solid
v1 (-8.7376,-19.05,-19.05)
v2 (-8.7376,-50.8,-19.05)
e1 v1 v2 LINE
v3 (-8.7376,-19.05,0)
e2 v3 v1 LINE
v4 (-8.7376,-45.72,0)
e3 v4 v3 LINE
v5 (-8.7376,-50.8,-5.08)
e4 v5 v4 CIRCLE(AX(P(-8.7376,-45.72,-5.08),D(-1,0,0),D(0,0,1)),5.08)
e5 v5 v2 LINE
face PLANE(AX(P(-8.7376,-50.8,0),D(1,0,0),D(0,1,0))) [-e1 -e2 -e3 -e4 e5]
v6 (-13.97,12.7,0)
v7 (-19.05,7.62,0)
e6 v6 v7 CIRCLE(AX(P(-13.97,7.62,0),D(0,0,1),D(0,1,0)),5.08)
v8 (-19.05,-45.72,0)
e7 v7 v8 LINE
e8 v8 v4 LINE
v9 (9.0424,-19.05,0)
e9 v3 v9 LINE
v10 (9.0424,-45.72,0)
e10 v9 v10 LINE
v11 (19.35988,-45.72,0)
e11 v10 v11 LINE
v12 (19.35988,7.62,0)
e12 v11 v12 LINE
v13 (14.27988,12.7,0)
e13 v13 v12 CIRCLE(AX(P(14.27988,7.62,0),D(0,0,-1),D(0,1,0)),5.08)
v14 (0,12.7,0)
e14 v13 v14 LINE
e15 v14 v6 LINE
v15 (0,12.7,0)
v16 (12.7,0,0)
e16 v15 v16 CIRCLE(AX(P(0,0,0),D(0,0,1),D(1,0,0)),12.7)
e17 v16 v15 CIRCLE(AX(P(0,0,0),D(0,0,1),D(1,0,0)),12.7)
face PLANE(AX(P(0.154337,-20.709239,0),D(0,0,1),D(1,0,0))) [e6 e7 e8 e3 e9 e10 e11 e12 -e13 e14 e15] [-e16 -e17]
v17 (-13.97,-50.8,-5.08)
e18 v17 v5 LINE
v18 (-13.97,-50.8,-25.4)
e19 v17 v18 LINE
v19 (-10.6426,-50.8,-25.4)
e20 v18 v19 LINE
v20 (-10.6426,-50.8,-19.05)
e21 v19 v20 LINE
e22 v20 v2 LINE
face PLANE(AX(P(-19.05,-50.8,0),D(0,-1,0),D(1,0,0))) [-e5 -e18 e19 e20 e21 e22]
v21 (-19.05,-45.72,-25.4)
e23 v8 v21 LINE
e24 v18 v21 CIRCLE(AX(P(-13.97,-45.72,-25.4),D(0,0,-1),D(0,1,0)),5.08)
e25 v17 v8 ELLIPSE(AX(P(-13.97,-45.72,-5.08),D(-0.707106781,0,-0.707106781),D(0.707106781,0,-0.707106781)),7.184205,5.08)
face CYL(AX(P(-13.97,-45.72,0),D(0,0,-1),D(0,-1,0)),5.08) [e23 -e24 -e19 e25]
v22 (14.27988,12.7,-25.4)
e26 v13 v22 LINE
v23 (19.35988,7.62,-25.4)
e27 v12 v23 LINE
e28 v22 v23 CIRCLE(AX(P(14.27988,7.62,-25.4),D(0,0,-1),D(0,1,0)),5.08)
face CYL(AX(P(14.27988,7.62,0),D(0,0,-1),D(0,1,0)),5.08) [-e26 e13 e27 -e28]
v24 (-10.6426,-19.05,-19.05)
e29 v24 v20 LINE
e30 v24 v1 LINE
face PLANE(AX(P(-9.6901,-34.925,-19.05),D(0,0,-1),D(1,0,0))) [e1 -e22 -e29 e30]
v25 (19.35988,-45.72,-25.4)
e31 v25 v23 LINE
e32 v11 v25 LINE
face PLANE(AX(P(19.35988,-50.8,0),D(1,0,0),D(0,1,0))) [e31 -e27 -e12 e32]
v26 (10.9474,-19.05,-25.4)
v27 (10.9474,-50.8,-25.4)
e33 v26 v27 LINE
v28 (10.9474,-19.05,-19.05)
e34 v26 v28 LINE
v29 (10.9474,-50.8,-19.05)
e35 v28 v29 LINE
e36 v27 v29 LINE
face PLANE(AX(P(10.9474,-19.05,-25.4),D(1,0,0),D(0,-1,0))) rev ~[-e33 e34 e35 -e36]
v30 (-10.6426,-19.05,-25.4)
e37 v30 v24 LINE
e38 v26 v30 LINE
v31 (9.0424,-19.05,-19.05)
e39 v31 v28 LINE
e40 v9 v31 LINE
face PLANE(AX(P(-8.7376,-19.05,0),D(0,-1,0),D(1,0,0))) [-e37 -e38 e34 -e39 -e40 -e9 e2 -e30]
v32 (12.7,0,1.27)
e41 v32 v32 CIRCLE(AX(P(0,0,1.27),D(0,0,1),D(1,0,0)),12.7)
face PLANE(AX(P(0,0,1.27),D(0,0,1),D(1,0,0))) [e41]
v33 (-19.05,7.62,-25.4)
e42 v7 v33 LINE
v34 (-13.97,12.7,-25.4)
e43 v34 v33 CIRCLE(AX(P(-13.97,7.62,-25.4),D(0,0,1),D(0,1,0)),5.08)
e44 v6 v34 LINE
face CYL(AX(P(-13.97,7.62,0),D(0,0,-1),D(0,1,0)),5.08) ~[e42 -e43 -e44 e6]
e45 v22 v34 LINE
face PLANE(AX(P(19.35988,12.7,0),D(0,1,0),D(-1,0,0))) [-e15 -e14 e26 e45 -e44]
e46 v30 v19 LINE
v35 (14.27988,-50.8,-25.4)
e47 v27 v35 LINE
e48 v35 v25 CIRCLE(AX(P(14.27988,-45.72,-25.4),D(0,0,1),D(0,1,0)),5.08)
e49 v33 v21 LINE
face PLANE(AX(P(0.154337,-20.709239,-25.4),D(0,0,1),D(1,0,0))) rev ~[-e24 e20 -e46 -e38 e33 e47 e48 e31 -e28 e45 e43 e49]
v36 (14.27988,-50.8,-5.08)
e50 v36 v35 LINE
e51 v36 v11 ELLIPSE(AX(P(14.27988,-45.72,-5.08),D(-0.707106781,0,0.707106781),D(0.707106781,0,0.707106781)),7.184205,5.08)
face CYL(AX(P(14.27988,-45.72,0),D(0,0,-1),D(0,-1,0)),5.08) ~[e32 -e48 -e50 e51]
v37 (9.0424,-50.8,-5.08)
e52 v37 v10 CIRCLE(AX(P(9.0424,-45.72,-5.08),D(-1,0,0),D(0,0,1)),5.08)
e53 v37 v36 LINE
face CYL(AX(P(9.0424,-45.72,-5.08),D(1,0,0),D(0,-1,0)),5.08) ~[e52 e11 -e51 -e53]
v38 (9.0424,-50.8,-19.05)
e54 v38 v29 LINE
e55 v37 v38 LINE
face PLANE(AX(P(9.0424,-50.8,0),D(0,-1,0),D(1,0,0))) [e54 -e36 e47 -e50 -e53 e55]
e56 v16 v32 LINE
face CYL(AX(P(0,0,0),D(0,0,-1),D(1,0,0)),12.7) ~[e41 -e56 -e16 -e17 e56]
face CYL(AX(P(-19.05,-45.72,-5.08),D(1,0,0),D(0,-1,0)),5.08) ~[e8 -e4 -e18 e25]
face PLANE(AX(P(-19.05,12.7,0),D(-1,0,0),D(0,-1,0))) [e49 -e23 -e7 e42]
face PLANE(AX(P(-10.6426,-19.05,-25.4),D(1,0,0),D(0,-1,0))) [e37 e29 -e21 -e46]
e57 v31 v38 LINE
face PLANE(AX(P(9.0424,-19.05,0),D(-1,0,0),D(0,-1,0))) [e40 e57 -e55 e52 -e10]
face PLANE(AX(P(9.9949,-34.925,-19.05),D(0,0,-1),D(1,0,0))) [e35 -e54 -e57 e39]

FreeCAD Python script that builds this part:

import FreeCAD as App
import Part
import Sketcher

V = App.Vector
Q = App.Units.Quantity


def edges_at(feature, points):
    """Names of the edges that pass closest to the given points."""
    edges = feature.Shape.Edges
    near = lambda p: min(range(len(edges)), key=lambda i: edges[i].distToShape(Part.Vertex(*p))[0])
    return sorted({f"Edge{near(p) + 1}" for p in points})


def add_polygon(sketch, points):
    """Adds a closed chain of lines whose ends are joined by coincident constraints."""
    first, n = sketch.GeometryCount, len(points)
    for a, b in zip(points, points[1:] + points[:1]):
        sketch.addGeometry(Part.LineSegment(App.Vector(*a, 0), App.Vector(*b, 0)), False)
    for i in range(n):
        sketch.addConstraint(Sketcher.Constraint("Coincident", first + i, 2, first + (i + 1) % n, 1))

doc = App.newDocument("Part")
body = doc.addObject("PartDesign::Body", "Body")

# Sketch on XY plane
sketch1 = body.newObject("Sketcher::SketchObject", "Sketch")
sketch1.AttachmentSupport = (doc.getObject("XY_Plane"), [""])
sketch1.MapMode = "FlatFace"
sketch1.addGeometry(Part.Circle(V(0, 0, 0), V(0, 0, 1), 13), False)
sketch1.addConstraint(Sketcher.Constraint("Coincident", 0, 3, -1, 1))
sketch1.addConstraint(Sketcher.Constraint("Diameter", 0, Q("1 in")))
pad1 = body.newObject("PartDesign::Pad", "Pad")
pad1.Profile = sketch1
pad1.Length = Q("0.05 in")

# Sketch on XY plane
sketch2 = body.newObject("Sketcher::SketchObject", "Sketch001")
sketch2.AttachmentSupport = (doc.getObject("XY_Plane"), [""])
sketch2.MapMode = "FlatFace"
add_polygon(sketch2, [(19, 13), (-19, 13), (-19, -51), (-9, -51), (-9, -19), (9, -19), (9, -51), (19, -51)])  # lines 0-7
sketch2.addConstraint(Sketcher.Constraint("Horizontal", 0))
sketch2.addConstraint(Sketcher.Constraint("Vertical", 1))
sketch2.addConstraint(Sketcher.Constraint("Horizontal", 2))
sketch2.addConstraint(Sketcher.Constraint("Vertical", 3))
sketch2.addConstraint(Sketcher.Constraint("Horizontal", 4))
sketch2.addConstraint(Sketcher.Constraint("Vertical", 5))
sketch2.addConstraint(Sketcher.Constraint("Horizontal", 6))
sketch2.addConstraint(Sketcher.Constraint("Vertical", 7))
sketch2.addConstraint(Sketcher.Constraint("Horizontal", 2, 2, 5, 2))
sketch2.addConstraint(Sketcher.Constraint("DistanceX", 4, 1, 4, 2, Q("0.7 in")))
sketch2.addConstraint(Sketcher.Constraint("DistanceY", 1, 2, 1, 1, Q("2.5 in")))
sketch2.addConstraint(Sketcher.Constraint("DistanceY", 1, 2, -1, 1, Q("2 in")))
sketch2.addConstraint(Sketcher.Constraint("DistanceY", 3, 1, 3, 2, Q("1.25 in")))
sketch2.addConstraint(Sketcher.Constraint("DistanceX", 2, 1, 2, 2, Q("0.406 in")))
sketch2.addConstraint(Sketcher.Constraint("DistanceX", 0, 2, -1, 1, Q("0.75 in")))
sketch2.addConstraint(Sketcher.Constraint("DistanceX", 0, 2, 0, 1, Q("1.5122 in")))
pad2 = body.newObject("PartDesign::Pad", "Pad001")
pad2.Profile = sketch2
pad2.Length = Q("1 in")
pad2.Reversed = True

# Sketch on XY plane
sketch3 = body.newObject("Sketcher::SketchObject", "Sketch002")
sketch3.AttachmentSupport = (doc.getObject("XY_Plane"), [""])
sketch3.MapMode = "FlatFace"
sketch3.AttachmentOffset = App.Placement(V(0, 0, -1 * 25.4), App.Rotation())
add_polygon(sketch3, [(-10.6, -50.8), (-10.6, -19.1), (-8.7, -19.1), (-8.7, -50.8)])  # lines 0-3
add_polygon(sketch3, [(9, -50.8), (9, -19.1), (10.9, -19.1), (10.9, -50.8)])  # lines 4-7
sketch3.addConstraint(Sketcher.Constraint("Vertical", 0))
sketch3.addConstraint(Sketcher.Constraint("Horizontal", 1))
sketch3.addConstraint(Sketcher.Constraint("Vertical", 2))
sketch3.addConstraint(Sketcher.Constraint("Horizontal", 3))
sketch3.addConstraint(Sketcher.Constraint("Vertical", 4))
sketch3.addConstraint(Sketcher.Constraint("Horizontal", 5))
sketch3.addConstraint(Sketcher.Constraint("Vertical", 6))
sketch3.addConstraint(Sketcher.Constraint("Horizontal", 7))
sketch3.addConstraint(Sketcher.Constraint("Horizontal", 1, 2, 4, 2))
sketch3.addConstraint(Sketcher.Constraint("Horizontal", 3, 2, 6, 2))
sketch3.addConstraint(Sketcher.Constraint("Equal", 3, 5))
sketch3.addConstraint(Sketcher.Constraint("DistanceY", 2, 2, -1, 1, Q("2 in")))
sketch3.addConstraint(Sketcher.Constraint("DistanceY", 0, 1, 0, 2, Q("1.25 in")))
sketch3.addConstraint(Sketcher.Constraint("DistanceX", 1, 2, 4, 2, Q("0.7 in")))
sketch3.addConstraint(Sketcher.Constraint("DistanceX", 1, 1, 1, 2, Q("0.075 in")))
sketch3.addConstraint(Sketcher.Constraint("DistanceX", 0, 2, -1, 1, Q("0.419 in")))
pocket1 = body.newObject("PartDesign::Pocket", "Pocket")
pocket1.Profile = sketch3
pocket1.Length = Q("0.25 in")
pocket1.Reversed = True
doc.recompute()

fillet = body.newObject("PartDesign::Fillet", "Fillet")
fillet.Base = (pocket1, edges_at(pocket1, [
    (-13.894, -50.8, 0),
    (-19.05, -50.8, -12.7),
    (14.201, -50.8, 0),
    (19.36, -50.8, -12.7),
    (19.36, 12.7, -12.7),
    (-19.05, 12.7, -12.7),
]))
fillet.Radius = Q("0.2 in")

doc.recompute()
